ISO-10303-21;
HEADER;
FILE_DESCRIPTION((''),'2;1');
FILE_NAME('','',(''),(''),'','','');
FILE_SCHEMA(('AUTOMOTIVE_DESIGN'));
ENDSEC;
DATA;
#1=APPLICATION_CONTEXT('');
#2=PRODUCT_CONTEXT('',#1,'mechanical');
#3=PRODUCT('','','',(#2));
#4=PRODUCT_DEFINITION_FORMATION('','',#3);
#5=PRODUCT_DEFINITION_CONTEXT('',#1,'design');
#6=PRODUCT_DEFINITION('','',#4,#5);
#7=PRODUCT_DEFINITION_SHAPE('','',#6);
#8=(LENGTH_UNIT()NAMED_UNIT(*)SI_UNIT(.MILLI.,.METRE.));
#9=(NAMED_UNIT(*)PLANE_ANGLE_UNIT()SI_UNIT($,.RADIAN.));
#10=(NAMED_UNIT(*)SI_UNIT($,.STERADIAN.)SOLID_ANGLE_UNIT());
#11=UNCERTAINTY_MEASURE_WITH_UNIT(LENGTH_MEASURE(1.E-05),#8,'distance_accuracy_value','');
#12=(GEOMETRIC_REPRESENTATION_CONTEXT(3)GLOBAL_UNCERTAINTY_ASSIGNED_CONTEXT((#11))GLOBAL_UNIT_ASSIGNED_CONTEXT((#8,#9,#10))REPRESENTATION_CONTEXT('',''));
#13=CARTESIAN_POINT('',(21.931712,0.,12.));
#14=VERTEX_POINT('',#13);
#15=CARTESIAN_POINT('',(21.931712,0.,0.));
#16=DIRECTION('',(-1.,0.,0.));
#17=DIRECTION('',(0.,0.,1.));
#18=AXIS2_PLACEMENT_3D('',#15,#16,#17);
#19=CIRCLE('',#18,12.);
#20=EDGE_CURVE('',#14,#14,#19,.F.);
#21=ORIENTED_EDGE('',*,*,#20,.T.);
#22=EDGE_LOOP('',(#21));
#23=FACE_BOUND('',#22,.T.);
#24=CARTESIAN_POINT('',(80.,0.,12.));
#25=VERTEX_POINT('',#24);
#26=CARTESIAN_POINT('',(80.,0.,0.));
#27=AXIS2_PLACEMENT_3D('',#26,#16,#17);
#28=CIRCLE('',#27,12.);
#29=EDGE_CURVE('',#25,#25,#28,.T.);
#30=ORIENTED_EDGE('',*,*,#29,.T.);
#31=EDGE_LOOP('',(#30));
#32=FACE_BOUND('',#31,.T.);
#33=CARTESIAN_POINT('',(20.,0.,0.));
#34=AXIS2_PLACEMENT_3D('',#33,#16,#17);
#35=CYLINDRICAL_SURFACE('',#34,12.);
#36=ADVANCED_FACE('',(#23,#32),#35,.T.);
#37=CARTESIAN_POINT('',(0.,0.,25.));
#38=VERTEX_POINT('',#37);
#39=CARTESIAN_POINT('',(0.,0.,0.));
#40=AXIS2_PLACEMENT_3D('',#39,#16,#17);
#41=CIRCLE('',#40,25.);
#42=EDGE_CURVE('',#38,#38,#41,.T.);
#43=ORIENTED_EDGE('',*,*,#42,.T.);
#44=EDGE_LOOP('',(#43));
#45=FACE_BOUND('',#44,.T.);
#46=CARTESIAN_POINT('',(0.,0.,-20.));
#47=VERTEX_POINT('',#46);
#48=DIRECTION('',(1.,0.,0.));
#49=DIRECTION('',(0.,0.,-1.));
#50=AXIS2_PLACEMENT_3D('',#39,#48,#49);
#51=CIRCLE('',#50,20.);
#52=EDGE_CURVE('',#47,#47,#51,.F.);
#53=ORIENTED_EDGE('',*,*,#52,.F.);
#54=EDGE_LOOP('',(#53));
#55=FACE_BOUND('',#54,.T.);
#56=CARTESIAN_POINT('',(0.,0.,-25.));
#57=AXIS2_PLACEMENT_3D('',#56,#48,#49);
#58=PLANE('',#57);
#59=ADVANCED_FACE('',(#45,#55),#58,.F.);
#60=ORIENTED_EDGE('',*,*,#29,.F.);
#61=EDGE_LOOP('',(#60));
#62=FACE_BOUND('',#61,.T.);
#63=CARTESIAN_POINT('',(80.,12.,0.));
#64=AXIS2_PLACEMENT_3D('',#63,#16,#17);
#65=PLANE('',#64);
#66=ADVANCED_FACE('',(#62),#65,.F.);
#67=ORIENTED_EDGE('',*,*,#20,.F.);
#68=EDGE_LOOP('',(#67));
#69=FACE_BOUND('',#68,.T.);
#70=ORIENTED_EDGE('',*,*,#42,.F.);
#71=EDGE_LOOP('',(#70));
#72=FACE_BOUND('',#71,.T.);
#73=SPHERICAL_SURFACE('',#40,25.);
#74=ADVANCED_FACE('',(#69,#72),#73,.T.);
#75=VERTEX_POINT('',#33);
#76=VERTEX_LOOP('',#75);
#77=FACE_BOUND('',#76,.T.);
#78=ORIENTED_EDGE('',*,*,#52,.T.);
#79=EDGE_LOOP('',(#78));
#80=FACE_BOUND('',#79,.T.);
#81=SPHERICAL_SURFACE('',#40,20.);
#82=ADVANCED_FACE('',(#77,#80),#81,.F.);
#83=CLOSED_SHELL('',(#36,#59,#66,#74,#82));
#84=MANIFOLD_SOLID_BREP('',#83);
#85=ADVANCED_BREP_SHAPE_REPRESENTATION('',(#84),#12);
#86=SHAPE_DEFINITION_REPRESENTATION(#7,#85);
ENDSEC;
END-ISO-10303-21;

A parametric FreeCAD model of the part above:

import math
import FreeCAD as App
import Part
import Sketcher


def faces_at(feature, points):
    """Names of the faces that lie closest to the given points."""
    faces = feature.Shape.Faces
    near = lambda p: min(range(len(faces)), key=lambda i: faces[i].distToShape(Part.Vertex(*p))[0])
    return sorted({f"Face{near(p) + 1}" for p in points})


def add_polygon(sketch, points):
    """Adds a closed chain of lines whose ends are joined by coincident constraints."""
    first, n = sketch.GeometryCount, len(points)
    for a, b in zip(points, points[1:] + points[:1]):
        sketch.addGeometry(Part.LineSegment(App.Vector(*a, 0), App.Vector(*b, 0)), False)
    for i in range(n):
        sketch.addConstraint(Sketcher.Constraint("Coincident", first + i, 2, first + (i + 1) % n, 1))

doc = App.newDocument("Part")
params = doc.addObject("Spreadsheet::Sheet", "Params")
for row, (alias, value) in enumerate([
    ("sketch1_radius", "25 mm"),
    ("revolution_angle", "360 deg"),
    ("thickness_wall", "5 mm"),
    ("sketch2_width", "60 mm"),
    ("sketch2_height", "12 mm"),
    ("revolution2_angle", "360 deg"),
], start=1):
    params.set(f"A{row}", alias)
    params.set(f"B{row}", "=" + value)
    params.setAlias(f"B{row}", alias)

body = doc.addObject("PartDesign::Body", "Body")

sketch1 = body.newObject("Sketcher::SketchObject", "Sketch")
sketch1.AttachmentSupport = (doc.getObject("XZ_Plane"), [""])
sketch1.MapMode = "FlatFace"
sketch1.addGeometry([
    Part.LineSegment(App.Vector(0, -25, 0), App.Vector(0, 0, 0)),
    Part.LineSegment(App.Vector(0, 0, 0), App.Vector(25, 0, 0)),
    Part.ArcOfCircle(Part.Circle(App.Vector(0, 0, 0), App.Vector(0, 0, 1), 25), math.radians(-90), math.radians(0)),
], False)
sketch1.addConstraint([
    Sketcher.Constraint("Coincident", 0, 2, 1, 1),
    Sketcher.Constraint("Coincident", 1, 2, 2, 2),
    Sketcher.Constraint("Coincident", 2, 1, 0, 1),
    Sketcher.Constraint("Vertical", 0),
    Sketcher.Constraint("Horizontal", 1),
    Sketcher.Constraint("Coincident", 2, 3, -1, 1),
    Sketcher.Constraint("Coincident", 0, 2, -1, 1),
    Sketcher.Constraint("Radius", 2, 25.0),
])
sketch1.setExpression("Constraints[7]", "Params.sketch1_radius")
revolution = body.newObject("PartDesign::Revolution", "Revolution")
revolution.Profile = sketch1
revolution.ReferenceAxis = (sketch1, ["H_Axis"])
revolution.setExpression("Angle", "Params.revolution_angle")
doc.recompute()

thickness = body.newObject("PartDesign::Thickness", "Thickness")
thickness.Base = (revolution, faces_at(revolution, [(0, 0, 0)]))
thickness.setExpression("Value", "Params.thickness_wall")
thickness.Reversed = True
thickness.Join = "Intersection"

sketch2 = body.newObject("Sketcher::SketchObject", "Sketch001")
sketch2.AttachmentSupport = (doc.getObject("XY_Plane"), [""])
sketch2.MapMode = "FlatFace"
add_polygon(sketch2, [(20, 12), (20, 0), (80, 0), (80, 12)])
sketch2.addConstraint([
    Sketcher.Constraint("Vertical", 0),
    Sketcher.Constraint("Horizontal", 1),
    Sketcher.Constraint("Vertical", 2),
    Sketcher.Constraint("Horizontal", 3),
    Sketcher.Constraint("PointOnObject", 0, 2, -1),
    Sketcher.Constraint("DistanceX", 1, 1, 1, 2, 60.0),
    Sketcher.Constraint("DistanceY", 0, 2, 0, 1, 12.0),
    Sketcher.Constraint("DistanceX", -1, 1, 0, 2, 20.0),
])
sketch2.setExpression("Constraints[9]", "Params.sketch2_width")
sketch2.setExpression("Constraints[10]", "Params.sketch2_height")
revolution2 = body.newObject("PartDesign::Revolution", "Revolution001")
revolution2.Profile = sketch2
revolution2.ReferenceAxis = (sketch2, ["H_Axis"])
revolution2.setExpression("Angle", "Params.revolution2_angle")

doc.recompute()
